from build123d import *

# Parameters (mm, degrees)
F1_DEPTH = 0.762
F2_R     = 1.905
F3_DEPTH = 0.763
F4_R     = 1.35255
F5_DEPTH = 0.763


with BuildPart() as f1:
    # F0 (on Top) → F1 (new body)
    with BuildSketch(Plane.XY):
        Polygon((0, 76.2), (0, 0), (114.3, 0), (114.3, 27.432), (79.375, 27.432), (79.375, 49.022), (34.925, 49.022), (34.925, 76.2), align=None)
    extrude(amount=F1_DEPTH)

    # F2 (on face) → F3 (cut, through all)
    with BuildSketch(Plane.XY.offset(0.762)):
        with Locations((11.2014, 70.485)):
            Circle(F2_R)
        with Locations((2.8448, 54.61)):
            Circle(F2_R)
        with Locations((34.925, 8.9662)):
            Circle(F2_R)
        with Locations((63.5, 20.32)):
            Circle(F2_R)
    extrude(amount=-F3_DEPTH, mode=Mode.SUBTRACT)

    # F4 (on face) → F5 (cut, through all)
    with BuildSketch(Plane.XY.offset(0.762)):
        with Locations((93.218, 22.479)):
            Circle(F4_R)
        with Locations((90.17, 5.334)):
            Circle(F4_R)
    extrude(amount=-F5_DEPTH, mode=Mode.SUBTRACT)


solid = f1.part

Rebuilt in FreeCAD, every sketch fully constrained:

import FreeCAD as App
import Part
import Sketcher

V = App.Vector
Q = App.Units.Quantity

doc = App.newDocument("Part")
body = doc.addObject("PartDesign::Body", "Body")

# Sketch on XY plane
sketch1 = body.newObject("Sketcher::SketchObject", "Sketch")
sketch1.AttachmentSupport = (doc.getObject("XY_Plane"), [""])
sketch1.MapMode = "FlatFace"
sketch1.addGeometry([
    Part.LineSegment(V(0, 76, 0), V(0, 0, 0)),  # 0
    Part.LineSegment(V(0, 0, 0), V(114, 0, 0)),  # 1
    Part.LineSegment(V(114, 0, 0), V(114, 27, 0)),  # 2
    Part.LineSegment(V(114, 27, 0), V(79, 27, 0)),  # 3
    Part.LineSegment(V(79, 27, 0), V(79, 49, 0)),  # 4
    Part.LineSegment(V(79, 49, 0), V(35, 49, 0)),  # 5
    Part.LineSegment(V(35, 49, 0), V(35, 76, 0)),  # 6
    Part.LineSegment(V(35, 76, 0), V(0, 76, 0)),  # 7
], False)
sketch1.addConstraint([
    Sketcher.Constraint("Coincident", 0, 2, 1, 1),
    Sketcher.Constraint("Coincident", 1, 2, 2, 1),
    Sketcher.Constraint("Coincident", 2, 2, 3, 1),
    Sketcher.Constraint("Coincident", 3, 2, 4, 1),
    Sketcher.Constraint("Coincident", 4, 2, 5, 1),
    Sketcher.Constraint("Coincident", 5, 2, 6, 1),
    Sketcher.Constraint("Coincident", 6, 2, 7, 1),
    Sketcher.Constraint("Coincident", 7, 2, 0, 1),
    Sketcher.Constraint("Vertical", 0),
    Sketcher.Constraint("Horizontal", 1),
    Sketcher.Constraint("Vertical", 2),
    Sketcher.Constraint("Horizontal", 3),
    Sketcher.Constraint("Vertical", 4),
    Sketcher.Constraint("Horizontal", 5),
    Sketcher.Constraint("Vertical", 6),
    Sketcher.Constraint("Horizontal", 7),
    Sketcher.Constraint("Coincident", 0, 2, -1, 1),
    Sketcher.Constraint("Equal", 3, 7),
    Sketcher.Constraint("DistanceY", 0, 2, 0, 1, Q("3 in")),
    Sketcher.Constraint("DistanceX", 1, 1, 1, 2, Q("4.5 in")),
    Sketcher.Constraint("DistanceX", 5, 2, 5, 1, Q("1.75 in")),
    Sketcher.Constraint("DistanceY", 2, 1, 2, 2, Q("1.08 in")),
    Sketcher.Constraint("DistanceY", 4, 1, 4, 2, Q("0.85 in")),
])
pad1 = body.newObject("PartDesign::Pad", "Pad")
pad1.Profile = sketch1
pad1.Length = Q("0.03 in")

# Sketch on XY plane
sketch2 = body.newObject("Sketcher::SketchObject", "Sketch001")
sketch2.AttachmentSupport = (doc.getObject("XY_Plane"), [""])
sketch2.MapMode = "FlatFace"
sketch2.AttachmentOffset = App.Placement(V(0, 0, 0.03 * 25.4), App.Rotation())
sketch2.addGeometry([
    Part.Circle(V(11.2, 70.5, 0), V(0, 0, 1), 1.9),
    Part.Circle(V(2.8, 54.6, 0), V(0, 0, 1), 1.9),
    Part.Circle(V(34.9, 9, 0), V(0, 0, 1), 1.9),
    Part.Circle(V(63.5, 20.3, 0), V(0, 0, 1), 1.9),
], False)
sketch2.addConstraint([
    Sketcher.Constraint("Equal", 0, 1),
    Sketcher.Constraint("Equal", 1, 2),
    Sketcher.Constraint("Equal", 2, 3),
    Sketcher.Constraint("Diameter", 0, Q("0.15 in")),
    Sketcher.Constraint("DistanceX", -1, 1, 3, 3, Q("2.5 in")),
    Sketcher.Constraint("DistanceY", -1, 1, 3, 3, Q("0.8 in")),
    Sketcher.Constraint("DistanceY", -1, 1, 1, 3, Q("2.15 in")),
    Sketcher.Constraint("DistanceX", -1, 1, 0, 3, Q("0.441 in")),
    Sketcher.Constraint("DistanceY", -1, 1, 0, 3, Q("2.775 in")),
    Sketcher.Constraint("DistanceX", -1, 1, 1, 3, Q("0.112 in")),
    Sketcher.Constraint("DistanceX", -1, 1, 2, 3, Q("1.375 in")),
    Sketcher.Constraint("DistanceY", -1, 1, 2, 3, Q("0.353 in")),
])
pocket1 = body.newObject("PartDesign::Pocket", "Pocket")
pocket1.Profile = sketch2
pocket1.Type = "ThroughAll"

# Sketch on XY plane
sketch3 = body.newObject("Sketcher::SketchObject", "Sketch002")
sketch3.AttachmentSupport = (doc.getObject("XY_Plane"), [""])
sketch3.MapMode = "FlatFace"
sketch3.AttachmentOffset = App.Placement(V(0, 0, 0.03 * 25.4), App.Rotation())
sketch3.addGeometry([
    Part.Circle(V(93.2, 22.5, 0), V(0, 0, 1), 1.4),
    Part.Circle(V(90.2, 5.3, 0), V(0, 0, 1), 1.4),
], False)
sketch3.addConstraint([
    Sketcher.Constraint("Equal", 0, 1),
    Sketcher.Constraint("Diameter", 0, Q("0.1065 in")),
    Sketcher.Constraint("DistanceX", -1, 1, 0, 3, Q("3.67 in")),
    Sketcher.Constraint("DistanceX", -1, 1, 1, 3, Q("3.55 in")),
    Sketcher.Constraint("DistanceY", -1, 1, 1, 3, Q("0.21 in")),
    Sketcher.Constraint("DistanceY", -1, 1, 0, 3, Q("0.885 in")),
])
pocket2 = body.newObject("PartDesign::Pocket", "Pocket001")
pocket2.Profile = sketch3
pocket2.Type = "ThroughAll"

doc.recompute()
